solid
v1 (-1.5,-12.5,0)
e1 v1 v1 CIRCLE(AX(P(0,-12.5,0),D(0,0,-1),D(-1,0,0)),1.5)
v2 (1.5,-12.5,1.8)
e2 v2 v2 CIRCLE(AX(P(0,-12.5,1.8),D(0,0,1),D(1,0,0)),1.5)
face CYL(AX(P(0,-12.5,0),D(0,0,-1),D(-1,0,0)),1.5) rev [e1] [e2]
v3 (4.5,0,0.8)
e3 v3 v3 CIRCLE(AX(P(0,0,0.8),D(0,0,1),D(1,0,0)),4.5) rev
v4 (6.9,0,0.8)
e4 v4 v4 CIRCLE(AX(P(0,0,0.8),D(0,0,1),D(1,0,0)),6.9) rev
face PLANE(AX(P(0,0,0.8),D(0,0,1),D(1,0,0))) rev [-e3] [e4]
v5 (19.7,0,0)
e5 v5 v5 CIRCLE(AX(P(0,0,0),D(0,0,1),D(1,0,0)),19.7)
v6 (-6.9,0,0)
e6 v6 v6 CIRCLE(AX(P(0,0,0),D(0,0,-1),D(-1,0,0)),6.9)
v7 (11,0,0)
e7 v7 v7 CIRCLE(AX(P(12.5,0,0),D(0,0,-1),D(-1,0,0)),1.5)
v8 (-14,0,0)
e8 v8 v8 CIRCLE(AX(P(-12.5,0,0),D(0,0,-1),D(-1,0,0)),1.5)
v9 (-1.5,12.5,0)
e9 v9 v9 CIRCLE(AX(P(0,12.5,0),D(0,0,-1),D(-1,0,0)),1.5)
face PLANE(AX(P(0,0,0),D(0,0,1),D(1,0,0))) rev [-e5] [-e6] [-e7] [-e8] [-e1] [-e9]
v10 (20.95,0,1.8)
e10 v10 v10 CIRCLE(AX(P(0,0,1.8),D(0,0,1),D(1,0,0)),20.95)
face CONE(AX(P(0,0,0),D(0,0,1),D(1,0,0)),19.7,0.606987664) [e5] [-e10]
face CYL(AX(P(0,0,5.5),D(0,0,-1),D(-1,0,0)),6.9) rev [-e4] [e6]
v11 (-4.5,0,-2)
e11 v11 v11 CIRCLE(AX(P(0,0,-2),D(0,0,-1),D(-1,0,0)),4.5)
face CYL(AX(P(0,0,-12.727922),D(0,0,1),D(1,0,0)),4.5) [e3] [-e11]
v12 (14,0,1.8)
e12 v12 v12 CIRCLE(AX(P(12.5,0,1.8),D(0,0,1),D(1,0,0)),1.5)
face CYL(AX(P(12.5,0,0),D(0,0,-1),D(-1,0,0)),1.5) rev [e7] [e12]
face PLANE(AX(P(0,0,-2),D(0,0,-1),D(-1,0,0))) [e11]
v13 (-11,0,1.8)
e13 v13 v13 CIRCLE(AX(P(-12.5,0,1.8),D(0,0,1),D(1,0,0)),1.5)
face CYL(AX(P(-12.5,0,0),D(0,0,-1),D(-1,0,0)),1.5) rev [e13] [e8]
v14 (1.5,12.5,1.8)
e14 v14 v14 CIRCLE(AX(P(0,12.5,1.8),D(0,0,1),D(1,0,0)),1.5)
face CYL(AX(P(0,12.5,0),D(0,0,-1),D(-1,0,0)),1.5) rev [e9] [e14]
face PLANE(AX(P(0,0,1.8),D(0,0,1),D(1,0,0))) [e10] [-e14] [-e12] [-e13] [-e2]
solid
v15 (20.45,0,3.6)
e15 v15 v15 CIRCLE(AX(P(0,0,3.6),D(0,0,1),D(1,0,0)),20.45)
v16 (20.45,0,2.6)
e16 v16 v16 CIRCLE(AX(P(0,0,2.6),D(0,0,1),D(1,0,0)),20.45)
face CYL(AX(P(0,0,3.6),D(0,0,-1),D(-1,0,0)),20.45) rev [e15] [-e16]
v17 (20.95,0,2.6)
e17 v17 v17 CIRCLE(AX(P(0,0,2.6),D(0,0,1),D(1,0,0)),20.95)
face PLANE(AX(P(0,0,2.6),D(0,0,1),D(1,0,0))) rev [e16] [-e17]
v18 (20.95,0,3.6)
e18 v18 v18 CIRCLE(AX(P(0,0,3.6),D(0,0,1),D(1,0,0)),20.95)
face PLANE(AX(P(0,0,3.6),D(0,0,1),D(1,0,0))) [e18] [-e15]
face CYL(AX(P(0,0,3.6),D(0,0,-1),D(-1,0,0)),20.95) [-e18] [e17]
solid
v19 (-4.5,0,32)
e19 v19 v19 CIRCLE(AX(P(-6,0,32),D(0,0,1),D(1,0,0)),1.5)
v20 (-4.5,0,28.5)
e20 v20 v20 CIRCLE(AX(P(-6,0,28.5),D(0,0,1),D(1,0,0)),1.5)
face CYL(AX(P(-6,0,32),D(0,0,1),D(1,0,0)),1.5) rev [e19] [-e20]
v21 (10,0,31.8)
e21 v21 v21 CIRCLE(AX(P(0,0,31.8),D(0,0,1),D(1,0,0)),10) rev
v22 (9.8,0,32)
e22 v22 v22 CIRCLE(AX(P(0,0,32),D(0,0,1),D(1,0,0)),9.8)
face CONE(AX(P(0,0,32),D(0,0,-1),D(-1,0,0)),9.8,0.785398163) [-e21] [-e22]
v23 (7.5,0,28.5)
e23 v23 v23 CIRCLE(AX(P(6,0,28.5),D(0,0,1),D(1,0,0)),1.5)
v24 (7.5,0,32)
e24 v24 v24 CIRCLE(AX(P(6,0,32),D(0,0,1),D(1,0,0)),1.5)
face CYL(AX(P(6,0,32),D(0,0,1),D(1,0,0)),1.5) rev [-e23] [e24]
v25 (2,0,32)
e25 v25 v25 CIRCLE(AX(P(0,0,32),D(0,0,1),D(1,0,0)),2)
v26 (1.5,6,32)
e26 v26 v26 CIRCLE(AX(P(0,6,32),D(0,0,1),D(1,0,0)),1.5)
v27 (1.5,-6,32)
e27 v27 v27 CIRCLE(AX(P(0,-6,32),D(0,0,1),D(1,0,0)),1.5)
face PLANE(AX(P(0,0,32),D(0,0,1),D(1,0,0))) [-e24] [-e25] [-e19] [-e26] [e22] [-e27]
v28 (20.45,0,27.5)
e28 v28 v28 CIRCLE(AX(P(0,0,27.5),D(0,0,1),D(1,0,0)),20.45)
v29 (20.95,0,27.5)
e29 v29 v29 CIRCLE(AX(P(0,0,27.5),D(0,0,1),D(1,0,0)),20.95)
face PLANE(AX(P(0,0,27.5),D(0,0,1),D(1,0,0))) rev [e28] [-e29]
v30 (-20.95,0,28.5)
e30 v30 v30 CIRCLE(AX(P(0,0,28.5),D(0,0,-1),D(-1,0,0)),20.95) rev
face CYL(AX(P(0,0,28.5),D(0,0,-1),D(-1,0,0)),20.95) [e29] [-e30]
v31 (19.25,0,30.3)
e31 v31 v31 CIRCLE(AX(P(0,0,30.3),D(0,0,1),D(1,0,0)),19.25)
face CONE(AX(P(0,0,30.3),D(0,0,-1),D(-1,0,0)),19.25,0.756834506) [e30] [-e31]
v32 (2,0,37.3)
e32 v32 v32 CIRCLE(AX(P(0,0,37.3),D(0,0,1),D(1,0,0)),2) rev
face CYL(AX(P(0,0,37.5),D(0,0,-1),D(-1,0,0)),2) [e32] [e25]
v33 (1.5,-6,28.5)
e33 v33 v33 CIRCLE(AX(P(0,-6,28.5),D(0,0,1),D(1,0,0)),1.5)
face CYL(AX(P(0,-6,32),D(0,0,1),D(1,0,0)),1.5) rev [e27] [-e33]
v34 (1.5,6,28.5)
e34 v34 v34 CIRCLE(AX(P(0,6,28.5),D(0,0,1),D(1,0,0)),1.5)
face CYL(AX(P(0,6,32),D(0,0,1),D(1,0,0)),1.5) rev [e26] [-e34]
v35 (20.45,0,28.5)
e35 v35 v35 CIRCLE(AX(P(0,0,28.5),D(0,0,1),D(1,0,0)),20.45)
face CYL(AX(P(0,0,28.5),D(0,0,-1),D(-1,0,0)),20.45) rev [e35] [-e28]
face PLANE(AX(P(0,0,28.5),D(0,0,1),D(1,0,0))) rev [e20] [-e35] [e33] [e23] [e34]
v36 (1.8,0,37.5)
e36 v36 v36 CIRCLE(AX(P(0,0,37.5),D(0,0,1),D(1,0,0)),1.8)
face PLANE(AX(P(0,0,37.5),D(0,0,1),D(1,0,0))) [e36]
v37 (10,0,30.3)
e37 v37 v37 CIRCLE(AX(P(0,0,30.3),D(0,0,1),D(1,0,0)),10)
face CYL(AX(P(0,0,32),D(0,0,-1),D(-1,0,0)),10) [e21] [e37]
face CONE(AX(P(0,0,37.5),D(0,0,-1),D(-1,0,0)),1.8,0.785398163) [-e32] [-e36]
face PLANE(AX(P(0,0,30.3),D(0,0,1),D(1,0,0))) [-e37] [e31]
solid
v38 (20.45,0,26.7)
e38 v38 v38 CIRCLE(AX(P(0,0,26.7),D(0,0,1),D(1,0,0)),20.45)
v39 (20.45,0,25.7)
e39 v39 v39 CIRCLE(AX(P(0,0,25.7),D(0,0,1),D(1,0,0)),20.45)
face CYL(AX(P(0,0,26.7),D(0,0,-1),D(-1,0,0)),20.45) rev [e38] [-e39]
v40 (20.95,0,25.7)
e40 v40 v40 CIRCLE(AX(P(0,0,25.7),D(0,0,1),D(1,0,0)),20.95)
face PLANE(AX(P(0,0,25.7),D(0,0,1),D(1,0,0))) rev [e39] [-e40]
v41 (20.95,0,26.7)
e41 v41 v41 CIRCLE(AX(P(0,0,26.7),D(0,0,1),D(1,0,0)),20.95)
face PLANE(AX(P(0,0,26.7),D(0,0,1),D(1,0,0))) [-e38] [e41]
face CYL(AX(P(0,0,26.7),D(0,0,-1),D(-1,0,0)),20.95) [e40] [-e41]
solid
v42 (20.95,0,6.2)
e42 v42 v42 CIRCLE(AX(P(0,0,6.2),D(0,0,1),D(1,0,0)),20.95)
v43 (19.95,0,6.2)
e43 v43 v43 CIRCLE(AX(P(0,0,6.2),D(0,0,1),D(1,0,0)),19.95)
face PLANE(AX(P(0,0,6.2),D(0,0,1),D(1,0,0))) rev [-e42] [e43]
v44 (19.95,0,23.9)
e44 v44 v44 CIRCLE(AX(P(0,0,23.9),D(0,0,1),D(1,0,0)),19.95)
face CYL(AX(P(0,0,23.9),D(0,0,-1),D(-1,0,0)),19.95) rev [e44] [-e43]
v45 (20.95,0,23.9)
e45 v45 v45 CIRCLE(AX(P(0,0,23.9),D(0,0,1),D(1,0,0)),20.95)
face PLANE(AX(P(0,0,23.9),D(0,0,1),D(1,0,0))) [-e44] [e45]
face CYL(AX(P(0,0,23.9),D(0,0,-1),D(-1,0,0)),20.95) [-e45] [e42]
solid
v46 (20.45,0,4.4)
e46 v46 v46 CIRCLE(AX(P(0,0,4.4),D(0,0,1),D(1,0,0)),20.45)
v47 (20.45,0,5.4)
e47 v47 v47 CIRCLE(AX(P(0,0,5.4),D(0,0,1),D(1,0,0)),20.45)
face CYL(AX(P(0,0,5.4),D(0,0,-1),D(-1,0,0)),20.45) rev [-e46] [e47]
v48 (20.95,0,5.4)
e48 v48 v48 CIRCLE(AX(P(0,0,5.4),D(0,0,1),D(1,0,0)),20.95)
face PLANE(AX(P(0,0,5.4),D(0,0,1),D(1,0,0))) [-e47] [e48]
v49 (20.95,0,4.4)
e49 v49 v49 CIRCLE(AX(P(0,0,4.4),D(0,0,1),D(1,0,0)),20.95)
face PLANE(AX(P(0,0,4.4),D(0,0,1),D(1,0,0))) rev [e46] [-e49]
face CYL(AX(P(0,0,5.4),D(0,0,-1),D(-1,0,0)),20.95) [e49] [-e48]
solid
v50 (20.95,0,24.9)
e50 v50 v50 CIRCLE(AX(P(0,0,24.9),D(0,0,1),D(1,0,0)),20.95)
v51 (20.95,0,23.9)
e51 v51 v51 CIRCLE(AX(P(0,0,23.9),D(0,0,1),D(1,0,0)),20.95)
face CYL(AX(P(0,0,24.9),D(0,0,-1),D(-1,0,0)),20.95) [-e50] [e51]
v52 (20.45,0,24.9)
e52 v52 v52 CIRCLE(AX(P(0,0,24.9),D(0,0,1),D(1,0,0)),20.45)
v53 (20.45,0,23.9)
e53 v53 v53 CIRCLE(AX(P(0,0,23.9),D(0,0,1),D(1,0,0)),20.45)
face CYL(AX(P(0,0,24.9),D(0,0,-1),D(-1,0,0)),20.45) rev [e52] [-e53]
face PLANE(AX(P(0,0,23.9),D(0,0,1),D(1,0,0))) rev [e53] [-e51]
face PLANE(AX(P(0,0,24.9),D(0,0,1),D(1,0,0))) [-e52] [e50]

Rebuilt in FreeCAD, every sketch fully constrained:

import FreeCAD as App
import Part
import Sketcher
from FreeCAD import Vector
Q = App.Units.Quantity


def edges_at(feature, points):
    """Names of the edges that pass closest to the given points."""
    edges = feature.Shape.Edges
    near = lambda p: min(range(len(edges)), key=lambda i: edges[i].distToShape(Part.Vertex(*p))[0])
    return sorted({f"Edge{near(p) + 1}" for p in points})


def add_polygon(sketch, points):
    """Adds a closed chain of lines whose ends are joined by coincident constraints."""
    first, n = sketch.GeometryCount, len(points)
    for a, b in zip(points, points[1:] + points[:1]):
        sketch.addGeometry(Part.LineSegment(App.Vector(*a, 0), App.Vector(*b, 0)), False)
    for i in range(n):
        sketch.addConstraint(Sketcher.Constraint("Coincident", first + i, 2, first + (i + 1) % n, 1))

doc = App.newDocument("Part")
body = doc.addObject("PartDesign::Body", "Body")

# Sketch on XY plane
sketch1 = body.newObject("Sketcher::SketchObject", "Sketch")
sketch1.AttachmentSupport = (doc.getObject("XY_Plane"), [""])
sketch1.MapMode = "FlatFace"
sketch1.AttachmentOffset = App.Placement(Vector(0, 0, 1.8), App.Rotation())
sketch1.addGeometry(Part.Circle(Vector(0, 0, 0), Vector(0, 0, 1), 20.95), False)
sketch1.addConstraint(Sketcher.Constraint("Coincident", 0, 3, -1, 1))
sketch1.addConstraint(Sketcher.Constraint("Diameter", 0, 41.9))

# Sketch on XY plane
sketch2 = body.newObject("Sketcher::SketchObject", "Sketch001")
sketch2.AttachmentSupport = (doc.getObject("XY_Plane"), [""])
sketch2.MapMode = "FlatFace"
sketch2.addGeometry(Part.Circle(Vector(0, 0, 0), Vector(0, 0, 1), 19.7), False)
sketch2.addConstraint(Sketcher.Constraint("Coincident", 0, 3, -1, 1))
sketch2.addConstraint(Sketcher.Constraint("Diameter", 0, 39.4))

additiveloft = body.newObject("PartDesign::AdditiveLoft", "AdditiveLoft")
additiveloft.Profile = sketch1
additiveloft.Sections = [sketch2]

# Sketch on XY plane
sketch3 = body.newObject("Sketcher::SketchObject", "Sketch002")
sketch3.AttachmentSupport = (doc.getObject("XY_Plane"), [""])
sketch3.MapMode = "FlatFace"
sketch3.addGeometry(Part.Circle(Vector(0, 0, 0), Vector(0, 0, 1), 6.9), False)
sketch3.addConstraint(Sketcher.Constraint("Coincident", 0, 3, -1, 1))
sketch3.addConstraint(Sketcher.Constraint("Diameter", 0, 13.8))
pocket1 = body.newObject("PartDesign::Pocket", "Pocket")
pocket1.Profile = sketch3
pocket1.Length = 5.5
pocket1.Reversed = True

# Sketch on XY plane
sketch4 = body.newObject("Sketcher::SketchObject", "Sketch003")
sketch4.AttachmentSupport = (doc.getObject("XY_Plane"), [""])
sketch4.MapMode = "FlatFace"
sketch4.AttachmentOffset = App.Placement(Vector(0, 0, 0.8), App.Rotation())
sketch4.addGeometry(Part.Circle(Vector(0, 0, 0), Vector(0, 0, 1), 6.9), False)
sketch4.addConstraint(Sketcher.Constraint("Coincident", 0, 3, -1, 1))
sketch4.addConstraint(Sketcher.Constraint("Diameter", 0, 13.8))
pad1 = body.newObject("PartDesign::Pad", "Pad")
pad1.Profile = sketch4
pad1.Length = 1

# Sketch on XY plane
sketch5 = body.newObject("Sketcher::SketchObject", "Sketch004")
sketch5.AttachmentSupport = (doc.getObject("XY_Plane"), [""])
sketch5.MapMode = "FlatFace"
sketch5.AttachmentOffset = App.Placement(Vector(0, 0, 0.8), App.Rotation())
sketch5.addGeometry(Part.Circle(Vector(0, 0, 0), Vector(0, 0, 1), 4.5), False)
sketch5.addConstraint(Sketcher.Constraint("Coincident", 0, 3, -1, 1))
sketch5.addConstraint(Sketcher.Constraint("Diameter", 0, 9.0))
pad2 = body.newObject("PartDesign::Pad", "Pad001")
pad2.Profile = sketch5
pad2.Length = 0.8
pad2.Reversed = True

# Sketch on XY plane
sketch6 = body.newObject("Sketcher::SketchObject", "Sketch005")
sketch6.AttachmentSupport = (doc.getObject("XY_Plane"), [""])
sketch6.MapMode = "FlatFace"
sketch6.addGeometry(Part.Circle(Vector(0, 0, 0), Vector(0, 0, 1), 4.5), False)
sketch6.addConstraint(Sketcher.Constraint("Coincident", 0, 3, -1, 1))
sketch6.addConstraint(Sketcher.Constraint("Diameter", 0, 9.0))
pad3 = body.newObject("PartDesign::Pad", "Pad002")
pad3.Profile = sketch6
pad3.Length = 2
pad3.Reversed = True

# Sketch on YZ plane
sketch7 = body.newObject("Sketcher::SketchObject", "Sketch006")
sketch7.AttachmentSupport = (doc.getObject("YZ_Plane"), [""])
sketch7.MapMode = "FlatFace"
sketch7.AttachmentOffset = App.Placement(Vector(0, 0, 12.5), App.Rotation())
add_polygon(sketch7, [(0, 5.901291), (0, 0), (1.5, 0), (1.5, 5)])  # lines 0-3
sketch7.addConstraint(Sketcher.Constraint("Vertical", 0))
sketch7.addConstraint(Sketcher.Constraint("Horizontal", 1))
sketch7.addConstraint(Sketcher.Constraint("Vertical", 2))
sketch7.addConstraint(Sketcher.Constraint("Coincident", 0, 2, -1, 1))
sketch7.addConstraint(Sketcher.Constraint("DistanceY", 2, 1, 2, 2, 5.0))
sketch7.addConstraint(Sketcher.Constraint("Angle", 3, Q("149 deg")))
sketch7.addConstraint(Sketcher.Constraint("DistanceX", 1, 1, 1, 2, 1.5))
groove = body.newObject("PartDesign::Groove", "Groove")
groove.Profile = sketch7
groove.ReferenceAxis = (sketch7, ["V_Axis"])
groove.Angle = 360
doc.recompute()

datumline = body.newObject("PartDesign::Line", "DatumLine")
datumline.Placement = App.Placement(Vector(0, 0, 0), App.Rotation(Vector(0, 0, 1), Vector(-0.707106781, 0.707106781, 0)))
linearpattern = body.newObject("PartDesign::LinearPattern", "LinearPattern")
linearpattern.Originals = [groove]
linearpattern.Direction = (datumline, [""])
linearpattern.Mode = "offset"
linearpattern.Offset = 17.67767
linearpattern.Occurrences = 2
body.Tip = linearpattern
doc.recompute()

datumline2 = body.newObject("PartDesign::Line", "DatumLine001")
datumline2.Placement = App.Placement(Vector(0, 0, 0), App.Rotation(Vector(0, 0, 1), Vector(-0.707106781, -0.707106781, 0)))
linearpattern2 = body.newObject("PartDesign::LinearPattern", "LinearPattern001")
linearpattern2.Originals = [groove]
linearpattern2.Direction = (datumline2, [""])
linearpattern2.Mode = "offset"
linearpattern2.Offset = 17.67767
linearpattern2.Occurrences = 2
body.Tip = linearpattern2
doc.recompute()

linearpattern3 = body.newObject("PartDesign::LinearPattern", "LinearPattern002")
linearpattern3.Originals = [groove]
linearpattern3.Direction = (doc.getObject("X_Axis"), [""])
linearpattern3.Mode = "offset"
linearpattern3.Offset = 25
linearpattern3.Occurrences = 2
linearpattern3.Reversed = True
body.Tip = linearpattern3
body2 = doc.addObject("PartDesign::Body", "Body001")

# Sketch on XY plane
sketch8 = body2.newObject("Sketcher::SketchObject", "Sketch007")
sketch8.AttachmentSupport = (doc.getObject("XY_Plane001"), [""])
sketch8.MapMode = "FlatFace"
sketch8.AttachmentOffset = App.Placement(Vector(0, 0, 2.6), App.Rotation())
sketch8.addGeometry(Part.Circle(Vector(0, 0, 0), Vector(0, 0, 1), 20.95), False)
sketch8.addGeometry(Part.Circle(Vector(0, 0, 0), Vector(0, 0, 1), 20.45), False)
sketch8.addConstraint(Sketcher.Constraint("Coincident", 0, 3, -1, 1))
sketch8.addConstraint(Sketcher.Constraint("Coincident", 1, 3, -1, 1))
sketch8.addConstraint(Sketcher.Constraint("Diameter", 0, 41.9))
sketch8.addConstraint(Sketcher.Constraint("Diameter", 1, 40.9))
pad4 = body2.newObject("PartDesign::Pad", "Pad003")
pad4.Profile = sketch8
pad4.Length = 1
body3 = doc.addObject("PartDesign::Body", "Body002")

# Sketch on XY plane
sketch9 = body3.newObject("Sketcher::SketchObject", "Sketch008")
sketch9.AttachmentSupport = (doc.getObject("XY_Plane002"), [""])
sketch9.MapMode = "FlatFace"
sketch9.AttachmentOffset = App.Placement(Vector(0, 0, 4.4), App.Rotation())
sketch9.addGeometry(Part.Circle(Vector(0, 0, 0), Vector(0, 0, 1), 20.95), False)
sketch9.addGeometry(Part.Circle(Vector(0, 0, 0), Vector(0, 0, 1), 20.45), False)
sketch9.addConstraint(Sketcher.Constraint("Coincident", 0, 3, -1, 1))
sketch9.addConstraint(Sketcher.Constraint("Coincident", 1, 3, -1, 1))
sketch9.addConstraint(Sketcher.Constraint("Diameter", 0, 41.9))
sketch9.addConstraint(Sketcher.Constraint("Diameter", 1, 40.9))
pad5 = body3.newObject("PartDesign::Pad", "Pad004")
pad5.Profile = sketch9
pad5.Length = 1
body4 = doc.addObject("PartDesign::Body", "Body003")

# Sketch on XY plane
sketch10 = body4.newObject("Sketcher::SketchObject", "Sketch009")
sketch10.AttachmentSupport = (doc.getObject("XY_Plane003"), [""])
sketch10.MapMode = "FlatFace"
sketch10.AttachmentOffset = App.Placement(Vector(0, 0, 6.2), App.Rotation())
sketch10.addGeometry(Part.Circle(Vector(0, 0, 0), Vector(0, 0, 1), 20.95), False)
sketch10.addGeometry(Part.Circle(Vector(0, 0, 0), Vector(0, 0, 1), 19.95), False)
sketch10.addConstraint(Sketcher.Constraint("Coincident", 0, 3, -1, 1))
sketch10.addConstraint(Sketcher.Constraint("Coincident", 1, 3, -1, 1))
sketch10.addConstraint(Sketcher.Constraint("Diameter", 0, 41.9))
sketch10.addConstraint(Sketcher.Constraint("Diameter", 1, 39.9))
pad6 = body4.newObject("PartDesign::Pad", "Pad005")
pad6.Profile = sketch10
pad6.Length = 17.7
body5 = doc.addObject("PartDesign::Body", "Body004")

# Sketch on XY plane
sketch11 = body5.newObject("Sketcher::SketchObject", "Sketch010")
sketch11.AttachmentSupport = (doc.getObject("XY_Plane004"), [""])
sketch11.MapMode = "FlatFace"
sketch11.AttachmentOffset = App.Placement(Vector(0, 0, 23.9), App.Rotation())
sketch11.addGeometry(Part.Circle(Vector(0, 0, 0), Vector(0, 0, 1), 20.95), False)
sketch11.addGeometry(Part.Circle(Vector(0, 0, 0), Vector(0, 0, 1), 20.45), False)
sketch11.addConstraint(Sketcher.Constraint("Coincident", 0, 3, -1, 1))
sketch11.addConstraint(Sketcher.Constraint("Coincident", 1, 3, -1, 1))
sketch11.addConstraint(Sketcher.Constraint("Diameter", 0, 41.9))
sketch11.addConstraint(Sketcher.Constraint("Diameter", 1, 40.9))
pad7 = body5.newObject("PartDesign::Pad", "Pad006")
pad7.Profile = sketch11
pad7.Length = 1
body6 = doc.addObject("PartDesign::Body", "Body005")

# Sketch on XY plane
sketch12 = body6.newObject("Sketcher::SketchObject", "Sketch011")
sketch12.AttachmentSupport = (doc.getObject("XY_Plane005"), [""])
sketch12.MapMode = "FlatFace"
sketch12.AttachmentOffset = App.Placement(Vector(0, 0, 25.7), App.Rotation())
sketch12.addGeometry(Part.Circle(Vector(0, 0, 0), Vector(0, 0, 1), 20.95), False)
sketch12.addGeometry(Part.Circle(Vector(0, 0, 0), Vector(0, 0, 1), 20.45), False)
sketch12.addConstraint(Sketcher.Constraint("Coincident", 0, 3, -1, 1))
sketch12.addConstraint(Sketcher.Constraint("Coincident", 1, 3, -1, 1))
sketch12.addConstraint(Sketcher.Constraint("Diameter", 0, 41.9))
sketch12.addConstraint(Sketcher.Constraint("Diameter", 1, 40.9))
pad8 = body6.newObject("PartDesign::Pad", "Pad007")
pad8.Profile = sketch12
pad8.Length = 1
body7 = doc.addObject("PartDesign::Body", "Body006")

# Sketch on XY plane
sketch13 = body7.newObject("Sketcher::SketchObject", "Sketch012")
sketch13.AttachmentSupport = (doc.getObject("XY_Plane006"), [""])
sketch13.MapMode = "FlatFace"
sketch13.AttachmentOffset = App.Placement(Vector(0, 0, 27.5), App.Rotation())
sketch13.addGeometry(Part.Circle(Vector(0, 0, 0), Vector(0, 0, 1), 20.95), False)
sketch13.addGeometry(Part.Circle(Vector(0, 0, 0), Vector(0, 0, 1), 20.45), False)
sketch13.addConstraint(Sketcher.Constraint("Coincident", 0, 3, -1, 1))
sketch13.addConstraint(Sketcher.Constraint("Coincident", 1, 3, -1, 1))
sketch13.addConstraint(Sketcher.Constraint("Diameter", 0, 41.9))
sketch13.addConstraint(Sketcher.Constraint("Diameter", 1, 40.9))
pad9 = body7.newObject("PartDesign::Pad", "Pad008")
pad9.Profile = sketch13
pad9.Length = 1

# Sketch on XY plane
sketch14 = body7.newObject("Sketcher::SketchObject", "Sketch013")
sketch14.AttachmentSupport = (doc.getObject("XY_Plane006"), [""])
sketch14.MapMode = "FlatFace"
sketch14.AttachmentOffset = App.Placement(Vector(0, 0, 28.5), App.Rotation())
sketch14.addGeometry(Part.Circle(Vector(0, 0, 0), Vector(0, 0, 1), 20.95), False)
sketch14.addConstraint(Sketcher.Constraint("Coincident", 0, 3, -1, 1))
sketch14.addConstraint(Sketcher.Constraint("Diameter", 0, 41.9))

# Sketch on XY plane
sketch15 = body7.newObject("Sketcher::SketchObject", "Sketch014")
sketch15.AttachmentSupport = (doc.getObject("XY_Plane006"), [""])
sketch15.MapMode = "FlatFace"
sketch15.AttachmentOffset = App.Placement(Vector(0, 0, 30.3), App.Rotation())
sketch15.addGeometry(Part.Circle(Vector(0, 0, 0), Vector(0, 0, 1), 19.25), False)
sketch15.addConstraint(Sketcher.Constraint("Coincident", 0, 3, -1, 1))
sketch15.addConstraint(Sketcher.Constraint("Diameter", 0, 38.5))

additiveloft2 = body7.newObject("PartDesign::AdditiveLoft", "AdditiveLoft001")
additiveloft2.Profile = sketch14
additiveloft2.Sections = [sketch15]

# Sketch on XY plane
sketch16 = body7.newObject("Sketcher::SketchObject", "Sketch015")
sketch16.AttachmentSupport = (doc.getObject("XY_Plane006"), [""])
sketch16.MapMode = "FlatFace"
sketch16.AttachmentOffset = App.Placement(Vector(0, 0, 30.3), App.Rotation())
sketch16.addGeometry(Part.Circle(Vector(0, 0, 0), Vector(0, 0, 1), 10), False)
sketch16.addConstraint(Sketcher.Constraint("Coincident", 0, 3, -1, 1))
sketch16.addConstraint(Sketcher.Constraint("Diameter", 0, 20.0))
pad10 = body7.newObject("PartDesign::Pad", "Pad009")
pad10.Profile = sketch16
pad10.Length = 1.7

# Sketch on XY plane
sketch17 = body7.newObject("Sketcher::SketchObject", "Sketch016")
sketch17.AttachmentSupport = (doc.getObject("XY_Plane006"), [""])
sketch17.MapMode = "FlatFace"
sketch17.AttachmentOffset = App.Placement(Vector(0, 0, 32), App.Rotation())
sketch17.addGeometry(Part.Circle(Vector(0, 0, 0), Vector(0, 0, 1), 2), False)
sketch17.addConstraint(Sketcher.Constraint("Coincident", 0, 3, -1, 1))
sketch17.addConstraint(Sketcher.Constraint("Diameter", 0, 4.0))
pad11 = body7.newObject("PartDesign::Pad", "Pad010")
pad11.Profile = sketch17
pad11.Length = 5.5

# Sketch on YZ plane
sketch18 = body7.newObject("Sketcher::SketchObject", "Sketch017")
sketch18.AttachmentSupport = (doc.getObject("YZ_Plane006"), [""])
sketch18.MapMode = "FlatFace"
sketch18.AttachmentOffset = App.Placement(Vector(0, 0, -6), App.Rotation())
add_polygon(sketch18, [(0, 26.098709), (0, 32), (-1.5, 32), (-1.5, 27)])  # lines 0-3
sketch18.addConstraint(Sketcher.Constraint("Vertical", 0))
sketch18.addConstraint(Sketcher.Constraint("Horizontal", 1))
sketch18.addConstraint(Sketcher.Constraint("Vertical", 2))
sketch18.addConstraint(Sketcher.Constraint("PointOnObject", 0, 2, -2))
sketch18.addConstraint(Sketcher.Constraint("DistanceY", 2, 2, 2, 1, 5.0))
sketch18.addConstraint(Sketcher.Constraint("Angle", 3, Q("-31 deg")))
sketch18.addConstraint(Sketcher.Constraint("DistanceX", 1, 2, 1, 1, 1.5))
sketch18.addConstraint(Sketcher.Constraint("DistanceY", -1, 1, 0, 2, 32.0))
groove2 = body7.newObject("PartDesign::Groove", "Groove001")
groove2.Profile = sketch18
groove2.ReferenceAxis = (sketch18, ["V_Axis"])
groove2.Angle = 360
doc.recompute()

linearpattern4 = body7.newObject("PartDesign::LinearPattern", "LinearPattern003")
linearpattern4.Originals = [groove2]
linearpattern4.Direction = (doc.getObject("X_Axis006"), [""])
linearpattern4.Mode = "offset"
linearpattern4.Offset = 12
linearpattern4.Occurrences = 2
body7.Tip = linearpattern4
doc.recompute()

datumline3 = body7.newObject("PartDesign::Line", "DatumLine002")
datumline3.Placement = App.Placement(Vector(0, 0, 0), App.Rotation(Vector(0, 0, 1), Vector(0.707106781, -0.707106781, 0)))
linearpattern5 = body7.newObject("PartDesign::LinearPattern", "LinearPattern004")
linearpattern5.Originals = [groove2]
linearpattern5.Direction = (datumline3, [""])
linearpattern5.Mode = "offset"
linearpattern5.Offset = 8.485281
linearpattern5.Occurrences = 2
body7.Tip = linearpattern5
doc.recompute()

datumline4 = body7.newObject("PartDesign::Line", "DatumLine003")
datumline4.Placement = App.Placement(Vector(0, 0, 0), App.Rotation(Vector(0, 0, 1), Vector(0.707106781, 0.707106781, 0)))
linearpattern6 = body7.newObject("PartDesign::LinearPattern", "LinearPattern005")
linearpattern6.Originals = [groove2]
linearpattern6.Direction = (datumline4, [""])
linearpattern6.Mode = "offset"
linearpattern6.Offset = 8.485281
linearpattern6.Occurrences = 2
body7.Tip = linearpattern6
doc.recompute()

chamfer = body7.newObject("PartDesign::Chamfer", "Chamfer")
chamfer.Base = (linearpattern6, edges_at(linearpattern6, [(-10, 0, 32), (-2, 0, 37.5)]))
chamfer.Size = 0.2

doc.recompute()
